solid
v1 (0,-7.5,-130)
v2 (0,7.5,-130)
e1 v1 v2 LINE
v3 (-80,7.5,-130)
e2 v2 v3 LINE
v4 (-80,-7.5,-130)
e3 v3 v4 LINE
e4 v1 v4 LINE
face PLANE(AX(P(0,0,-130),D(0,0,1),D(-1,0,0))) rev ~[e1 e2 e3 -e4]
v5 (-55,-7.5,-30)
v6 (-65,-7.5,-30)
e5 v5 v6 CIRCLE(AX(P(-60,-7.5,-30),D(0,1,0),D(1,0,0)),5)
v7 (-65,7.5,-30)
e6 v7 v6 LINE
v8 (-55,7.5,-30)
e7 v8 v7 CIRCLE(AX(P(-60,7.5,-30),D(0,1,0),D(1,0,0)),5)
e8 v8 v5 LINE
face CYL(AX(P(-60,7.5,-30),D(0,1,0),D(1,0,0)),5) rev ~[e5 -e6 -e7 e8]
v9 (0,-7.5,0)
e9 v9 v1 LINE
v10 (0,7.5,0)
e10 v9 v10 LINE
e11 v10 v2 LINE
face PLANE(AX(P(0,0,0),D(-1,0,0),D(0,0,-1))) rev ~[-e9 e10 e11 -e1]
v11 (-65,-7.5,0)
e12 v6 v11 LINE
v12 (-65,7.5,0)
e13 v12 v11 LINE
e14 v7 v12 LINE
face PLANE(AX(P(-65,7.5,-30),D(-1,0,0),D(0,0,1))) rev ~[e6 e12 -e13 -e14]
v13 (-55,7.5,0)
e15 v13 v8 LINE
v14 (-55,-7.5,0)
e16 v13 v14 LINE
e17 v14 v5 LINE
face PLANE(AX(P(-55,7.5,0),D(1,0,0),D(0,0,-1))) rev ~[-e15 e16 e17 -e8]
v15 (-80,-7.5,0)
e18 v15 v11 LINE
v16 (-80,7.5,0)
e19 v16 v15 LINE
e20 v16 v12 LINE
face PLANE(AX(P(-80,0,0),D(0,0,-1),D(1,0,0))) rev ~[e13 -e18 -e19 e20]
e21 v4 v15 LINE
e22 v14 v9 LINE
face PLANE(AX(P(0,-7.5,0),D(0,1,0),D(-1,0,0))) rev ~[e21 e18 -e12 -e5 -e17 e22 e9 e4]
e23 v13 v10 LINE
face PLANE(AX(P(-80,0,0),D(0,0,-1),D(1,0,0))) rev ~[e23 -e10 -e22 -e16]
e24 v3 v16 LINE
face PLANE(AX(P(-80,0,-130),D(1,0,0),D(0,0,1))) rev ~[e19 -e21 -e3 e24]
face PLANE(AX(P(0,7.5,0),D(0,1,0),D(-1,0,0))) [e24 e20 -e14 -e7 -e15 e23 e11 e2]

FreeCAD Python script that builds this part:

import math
import FreeCAD as App
import Part
import Sketcher

V = App.Vector
Q = App.Units.Quantity

doc = App.newDocument("Part")
params = doc.addObject("Spreadsheet::Sheet", "Params")
for row, (alias, value) in enumerate([
    ("sketch1_width", "80 mm"),
    ("sketch1_height", "130 mm"),
    ("pad1_length", "15 mm"),
    ("sketch2_radius", "5 mm"),
    ("sketch2_height", "30 mm"),
], start=1):
    params.set(f"A{row}", alias)
    params.set(f"B{row}", "=" + value)
    params.setAlias(f"B{row}", alias)

body = doc.addObject("PartDesign::Body", "Body")

# Sketch on XZ plane
sketch1 = body.newObject("Sketcher::SketchObject", "Sketch")
sketch1.AttachmentSupport = (doc.getObject("XZ_Plane"), [""])
sketch1.MapMode = "FlatFace"
sketch1.addGeometry([
    Part.LineSegment(V(-80, 0, 0), V(0, 0, 0)),
    Part.LineSegment(V(0, 0, 0), V(0, -130, 0)),
    Part.LineSegment(V(0, -130, 0), V(-80, -130, 0)),
    Part.LineSegment(V(-80, -130, 0), V(-80, 0, 0)),
], False)
sketch1.addConstraint([
    Sketcher.Constraint("Coincident", 0, 2, 1, 1),
    Sketcher.Constraint("Coincident", 1, 2, 2, 1),
    Sketcher.Constraint("Coincident", 2, 2, 3, 1),
    Sketcher.Constraint("Coincident", 3, 2, 0, 1),
    Sketcher.Constraint("Horizontal", 0),
    Sketcher.Constraint("Vertical", 1),
    Sketcher.Constraint("Horizontal", 2),
    Sketcher.Constraint("Vertical", 3),
    Sketcher.Constraint("Coincident", 0, 2, -1, 1),
    Sketcher.Constraint("DistanceX", 0, 1, 0, 2, Q("80 mm")),
    Sketcher.Constraint("DistanceY", 1, 2, 1, 1, Q("130 mm")),
])
sketch1.setExpression("Constraints[9]", "Params.sketch1_width")
sketch1.setExpression("Constraints[10]", "Params.sketch1_height")
pad1 = body.newObject("PartDesign::Pad", "Pad")
pad1.Profile = sketch1
pad1.setExpression("Length", "Params.pad1_length")
pad1.Midplane = True

# Sketch on XZ plane
sketch2 = body.newObject("Sketcher::SketchObject", "Sketch001")
sketch2.AttachmentSupport = (doc.getObject("XZ_Plane"), [""])
sketch2.MapMode = "FlatFace"
sketch2.AttachmentOffset = App.Placement(V(0, 0, -7.5), App.Rotation())
sketch2.addGeometry([
    Part.LineSegment(V(-65, 0, 0), V(-55, 0, 0)),
    Part.LineSegment(V(-55, 0, 0), V(-55, -30, 0)),
    Part.ArcOfCircle(Part.Circle(V(-60, -30, 0), V(0, 0, 1), 5), math.radians(180), math.radians(360)),
    Part.LineSegment(V(-65, -30, 0), V(-65, 0, 0)),
], False)
sketch2.addConstraint([
    Sketcher.Constraint("Coincident", 0, 2, 1, 1),
    Sketcher.Constraint("Tangent", 1, 2, 2, 2),
    Sketcher.Constraint("Tangent", 2, 1, 3, 1),
    Sketcher.Constraint("Coincident", 3, 2, 0, 1),
    Sketcher.Constraint("Horizontal", 0),
    Sketcher.Constraint("Vertical", 1),
    Sketcher.Constraint("Vertical", 3),
    Sketcher.Constraint("PointOnObject", 0, 2, -1),
    Sketcher.Constraint("Radius", 2, Q("5 mm")),
    Sketcher.Constraint("DistanceY", 1, 2, 1, 1, Q("30 mm")),
    Sketcher.Constraint("DistanceX", 2, 3, -1, 1, Q("60 mm")),
])
sketch2.setExpression("Constraints[8]", "Params.sketch2_radius")
sketch2.setExpression("Constraints[9]", "Params.sketch2_height")
pocket1 = body.newObject("PartDesign::Pocket", "Pocket")
pocket1.Profile = sketch2
pocket1.Type = "ThroughAll"
pocket1.Midplane = True

doc.recompute()
